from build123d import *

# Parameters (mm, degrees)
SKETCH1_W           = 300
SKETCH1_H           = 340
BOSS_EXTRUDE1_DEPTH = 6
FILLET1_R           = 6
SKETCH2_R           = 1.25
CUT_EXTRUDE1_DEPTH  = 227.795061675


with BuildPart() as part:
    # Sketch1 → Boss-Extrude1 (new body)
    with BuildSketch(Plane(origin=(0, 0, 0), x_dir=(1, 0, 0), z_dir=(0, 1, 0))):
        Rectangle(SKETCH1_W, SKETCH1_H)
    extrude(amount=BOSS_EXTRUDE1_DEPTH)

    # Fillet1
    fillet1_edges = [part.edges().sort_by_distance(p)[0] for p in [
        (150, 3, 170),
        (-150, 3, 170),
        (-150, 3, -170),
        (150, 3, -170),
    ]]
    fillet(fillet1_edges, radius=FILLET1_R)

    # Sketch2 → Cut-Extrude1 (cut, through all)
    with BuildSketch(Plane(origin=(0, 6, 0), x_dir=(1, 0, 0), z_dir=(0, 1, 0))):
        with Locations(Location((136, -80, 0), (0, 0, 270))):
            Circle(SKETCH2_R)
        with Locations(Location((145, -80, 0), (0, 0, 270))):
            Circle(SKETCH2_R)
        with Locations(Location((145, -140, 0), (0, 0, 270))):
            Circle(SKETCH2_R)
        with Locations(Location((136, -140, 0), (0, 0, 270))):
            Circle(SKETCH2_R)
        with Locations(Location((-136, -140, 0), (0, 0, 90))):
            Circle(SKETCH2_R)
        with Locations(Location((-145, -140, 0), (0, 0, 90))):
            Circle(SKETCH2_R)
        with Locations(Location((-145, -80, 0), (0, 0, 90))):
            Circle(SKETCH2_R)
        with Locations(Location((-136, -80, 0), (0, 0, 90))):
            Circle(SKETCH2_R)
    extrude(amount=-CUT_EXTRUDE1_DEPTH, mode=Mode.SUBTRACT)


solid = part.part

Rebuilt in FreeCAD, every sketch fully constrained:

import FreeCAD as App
import Part
import Sketcher

V = App.Vector
Q = App.Units.Quantity


def edges_at(feature, points):
    """Names of the edges that pass closest to the given points."""
    edges = feature.Shape.Edges
    near = lambda p: min(range(len(edges)), key=lambda i: edges[i].distToShape(Part.Vertex(*p))[0])
    return sorted({f"Edge{near(p) + 1}" for p in points})


def add_polygon(sketch, points):
    """Adds a closed chain of lines whose ends are joined by coincident constraints."""
    first, n = sketch.GeometryCount, len(points)
    for a, b in zip(points, points[1:] + points[:1]):
        sketch.addGeometry(Part.LineSegment(App.Vector(*a, 0), App.Vector(*b, 0)), False)
    for i in range(n):
        sketch.addConstraint(Sketcher.Constraint("Coincident", first + i, 2, first + (i + 1) % n, 1))

doc = App.newDocument("Part")
body = doc.addObject("PartDesign::Body", "Body")

# Sketch on XZ plane
sketch1 = body.newObject("Sketcher::SketchObject", "Sketch")
sketch1.AttachmentSupport = (doc.getObject("XZ_Plane"), [""])
sketch1.MapMode = "FlatFace"
add_polygon(sketch1, [(-150, -170), (-150, 170), (150, 170), (150, -170)])  # lines 0-3
sketch1.addConstraint(Sketcher.Constraint("Vertical", 0))
sketch1.addConstraint(Sketcher.Constraint("Horizontal", 1))
sketch1.addConstraint(Sketcher.Constraint("Vertical", 2))
sketch1.addConstraint(Sketcher.Constraint("Horizontal", 3))
sketch1.addConstraint(Sketcher.Constraint("Symmetric", 0, 2, 2, 2, -1, 1))
sketch1.addConstraint(Sketcher.Constraint("DistanceX", 1, 1, 1, 2, Q("300 mm")))
sketch1.addConstraint(Sketcher.Constraint("DistanceY", 0, 1, 0, 2, Q("340 mm")))
pad1 = body.newObject("PartDesign::Pad", "Pad")
pad1.Profile = sketch1
pad1.Length = 6
pad1.Reversed = True
doc.recompute()

fillet = body.newObject("PartDesign::Fillet", "Fillet")
fillet.Base = (pad1, edges_at(pad1, [
    (150, 3, 170),
    (-150, 3, 170),
    (-150, 3, -170),
    (150, 3, -170),
]))
fillet.Radius = 6

# Sketch on XZ plane
sketch2 = body.newObject("Sketcher::SketchObject", "Sketch001")
sketch2.AttachmentSupport = (doc.getObject("XZ_Plane"), [""])
sketch2.MapMode = "FlatFace"
sketch2.AttachmentOffset = App.Placement(V(0, 0, -6), App.Rotation())
sketch2.addGeometry(Part.Circle(V(136, 80, 0), V(0, 0, 1), 1.25), False)
sketch2.addGeometry(Part.Circle(V(145, 80, 0), V(0, 0, 1), 1.25), False)
sketch2.addGeometry(Part.Circle(V(145, 140, 0), V(0, 0, 1), 1.25), False)
sketch2.addGeometry(Part.Circle(V(136, 140, 0), V(0, 0, 1), 1.25), False)
sketch2.addGeometry(Part.Circle(V(-136, 140, 0), V(0, 0, 1), 1.25), False)
sketch2.addGeometry(Part.Circle(V(-145, 140, 0), V(0, 0, 1), 1.25), False)
sketch2.addGeometry(Part.Circle(V(-145, 80, 0), V(0, 0, 1), 1.25), False)
sketch2.addGeometry(Part.Circle(V(-136, 80, 0), V(0, 0, 1), 1.25), False)
sketch2.addConstraint(Sketcher.Constraint("Equal", 0, 1))
sketch2.addConstraint(Sketcher.Constraint("Equal", 1, 2))
sketch2.addConstraint(Sketcher.Constraint("Equal", 2, 3))
sketch2.addConstraint(Sketcher.Constraint("Equal", 3, 4))
sketch2.addConstraint(Sketcher.Constraint("Equal", 4, 5))
sketch2.addConstraint(Sketcher.Constraint("Equal", 5, 6))
sketch2.addConstraint(Sketcher.Constraint("Equal", 6, 7))
sketch2.addConstraint(Sketcher.Constraint("Symmetric", 3, 3, 4, 3, -2))
sketch2.addConstraint(Sketcher.Constraint("Symmetric", 2, 3, 5, 3, -2))
sketch2.addConstraint(Sketcher.Constraint("Symmetric", 1, 3, 6, 3, -2))
sketch2.addConstraint(Sketcher.Constraint("Symmetric", 0, 3, 7, 3, -2))
sketch2.addConstraint(Sketcher.Constraint("Horizontal", 0, 3, 1, 3))
sketch2.addConstraint(Sketcher.Constraint("Horizontal", 2, 3, 3, 3))
sketch2.addConstraint(Sketcher.Constraint("Vertical", 1, 3, 2, 3))
sketch2.addConstraint(Sketcher.Constraint("Vertical", 0, 3, 3, 3))
sketch2.addConstraint(Sketcher.Constraint("Diameter", 0, Q("2.5 mm")))
sketch2.addConstraint(Sketcher.Constraint("DistanceX", -1, 1, 0, 3, Q("136 mm")))
sketch2.addConstraint(Sketcher.Constraint("DistanceY", -1, 1, 0, 3, Q("80 mm")))
sketch2.addConstraint(Sketcher.Constraint("DistanceX", -1, 1, 1, 3, Q("145 mm")))
sketch2.addConstraint(Sketcher.Constraint("DistanceY", -1, 1, 2, 3, Q("140 mm")))
pocket1 = body.newObject("PartDesign::Pocket", "Pocket")
pocket1.Profile = sketch2
pocket1.Type = "ThroughAll"
pocket1.Reversed = True

doc.recompute()
